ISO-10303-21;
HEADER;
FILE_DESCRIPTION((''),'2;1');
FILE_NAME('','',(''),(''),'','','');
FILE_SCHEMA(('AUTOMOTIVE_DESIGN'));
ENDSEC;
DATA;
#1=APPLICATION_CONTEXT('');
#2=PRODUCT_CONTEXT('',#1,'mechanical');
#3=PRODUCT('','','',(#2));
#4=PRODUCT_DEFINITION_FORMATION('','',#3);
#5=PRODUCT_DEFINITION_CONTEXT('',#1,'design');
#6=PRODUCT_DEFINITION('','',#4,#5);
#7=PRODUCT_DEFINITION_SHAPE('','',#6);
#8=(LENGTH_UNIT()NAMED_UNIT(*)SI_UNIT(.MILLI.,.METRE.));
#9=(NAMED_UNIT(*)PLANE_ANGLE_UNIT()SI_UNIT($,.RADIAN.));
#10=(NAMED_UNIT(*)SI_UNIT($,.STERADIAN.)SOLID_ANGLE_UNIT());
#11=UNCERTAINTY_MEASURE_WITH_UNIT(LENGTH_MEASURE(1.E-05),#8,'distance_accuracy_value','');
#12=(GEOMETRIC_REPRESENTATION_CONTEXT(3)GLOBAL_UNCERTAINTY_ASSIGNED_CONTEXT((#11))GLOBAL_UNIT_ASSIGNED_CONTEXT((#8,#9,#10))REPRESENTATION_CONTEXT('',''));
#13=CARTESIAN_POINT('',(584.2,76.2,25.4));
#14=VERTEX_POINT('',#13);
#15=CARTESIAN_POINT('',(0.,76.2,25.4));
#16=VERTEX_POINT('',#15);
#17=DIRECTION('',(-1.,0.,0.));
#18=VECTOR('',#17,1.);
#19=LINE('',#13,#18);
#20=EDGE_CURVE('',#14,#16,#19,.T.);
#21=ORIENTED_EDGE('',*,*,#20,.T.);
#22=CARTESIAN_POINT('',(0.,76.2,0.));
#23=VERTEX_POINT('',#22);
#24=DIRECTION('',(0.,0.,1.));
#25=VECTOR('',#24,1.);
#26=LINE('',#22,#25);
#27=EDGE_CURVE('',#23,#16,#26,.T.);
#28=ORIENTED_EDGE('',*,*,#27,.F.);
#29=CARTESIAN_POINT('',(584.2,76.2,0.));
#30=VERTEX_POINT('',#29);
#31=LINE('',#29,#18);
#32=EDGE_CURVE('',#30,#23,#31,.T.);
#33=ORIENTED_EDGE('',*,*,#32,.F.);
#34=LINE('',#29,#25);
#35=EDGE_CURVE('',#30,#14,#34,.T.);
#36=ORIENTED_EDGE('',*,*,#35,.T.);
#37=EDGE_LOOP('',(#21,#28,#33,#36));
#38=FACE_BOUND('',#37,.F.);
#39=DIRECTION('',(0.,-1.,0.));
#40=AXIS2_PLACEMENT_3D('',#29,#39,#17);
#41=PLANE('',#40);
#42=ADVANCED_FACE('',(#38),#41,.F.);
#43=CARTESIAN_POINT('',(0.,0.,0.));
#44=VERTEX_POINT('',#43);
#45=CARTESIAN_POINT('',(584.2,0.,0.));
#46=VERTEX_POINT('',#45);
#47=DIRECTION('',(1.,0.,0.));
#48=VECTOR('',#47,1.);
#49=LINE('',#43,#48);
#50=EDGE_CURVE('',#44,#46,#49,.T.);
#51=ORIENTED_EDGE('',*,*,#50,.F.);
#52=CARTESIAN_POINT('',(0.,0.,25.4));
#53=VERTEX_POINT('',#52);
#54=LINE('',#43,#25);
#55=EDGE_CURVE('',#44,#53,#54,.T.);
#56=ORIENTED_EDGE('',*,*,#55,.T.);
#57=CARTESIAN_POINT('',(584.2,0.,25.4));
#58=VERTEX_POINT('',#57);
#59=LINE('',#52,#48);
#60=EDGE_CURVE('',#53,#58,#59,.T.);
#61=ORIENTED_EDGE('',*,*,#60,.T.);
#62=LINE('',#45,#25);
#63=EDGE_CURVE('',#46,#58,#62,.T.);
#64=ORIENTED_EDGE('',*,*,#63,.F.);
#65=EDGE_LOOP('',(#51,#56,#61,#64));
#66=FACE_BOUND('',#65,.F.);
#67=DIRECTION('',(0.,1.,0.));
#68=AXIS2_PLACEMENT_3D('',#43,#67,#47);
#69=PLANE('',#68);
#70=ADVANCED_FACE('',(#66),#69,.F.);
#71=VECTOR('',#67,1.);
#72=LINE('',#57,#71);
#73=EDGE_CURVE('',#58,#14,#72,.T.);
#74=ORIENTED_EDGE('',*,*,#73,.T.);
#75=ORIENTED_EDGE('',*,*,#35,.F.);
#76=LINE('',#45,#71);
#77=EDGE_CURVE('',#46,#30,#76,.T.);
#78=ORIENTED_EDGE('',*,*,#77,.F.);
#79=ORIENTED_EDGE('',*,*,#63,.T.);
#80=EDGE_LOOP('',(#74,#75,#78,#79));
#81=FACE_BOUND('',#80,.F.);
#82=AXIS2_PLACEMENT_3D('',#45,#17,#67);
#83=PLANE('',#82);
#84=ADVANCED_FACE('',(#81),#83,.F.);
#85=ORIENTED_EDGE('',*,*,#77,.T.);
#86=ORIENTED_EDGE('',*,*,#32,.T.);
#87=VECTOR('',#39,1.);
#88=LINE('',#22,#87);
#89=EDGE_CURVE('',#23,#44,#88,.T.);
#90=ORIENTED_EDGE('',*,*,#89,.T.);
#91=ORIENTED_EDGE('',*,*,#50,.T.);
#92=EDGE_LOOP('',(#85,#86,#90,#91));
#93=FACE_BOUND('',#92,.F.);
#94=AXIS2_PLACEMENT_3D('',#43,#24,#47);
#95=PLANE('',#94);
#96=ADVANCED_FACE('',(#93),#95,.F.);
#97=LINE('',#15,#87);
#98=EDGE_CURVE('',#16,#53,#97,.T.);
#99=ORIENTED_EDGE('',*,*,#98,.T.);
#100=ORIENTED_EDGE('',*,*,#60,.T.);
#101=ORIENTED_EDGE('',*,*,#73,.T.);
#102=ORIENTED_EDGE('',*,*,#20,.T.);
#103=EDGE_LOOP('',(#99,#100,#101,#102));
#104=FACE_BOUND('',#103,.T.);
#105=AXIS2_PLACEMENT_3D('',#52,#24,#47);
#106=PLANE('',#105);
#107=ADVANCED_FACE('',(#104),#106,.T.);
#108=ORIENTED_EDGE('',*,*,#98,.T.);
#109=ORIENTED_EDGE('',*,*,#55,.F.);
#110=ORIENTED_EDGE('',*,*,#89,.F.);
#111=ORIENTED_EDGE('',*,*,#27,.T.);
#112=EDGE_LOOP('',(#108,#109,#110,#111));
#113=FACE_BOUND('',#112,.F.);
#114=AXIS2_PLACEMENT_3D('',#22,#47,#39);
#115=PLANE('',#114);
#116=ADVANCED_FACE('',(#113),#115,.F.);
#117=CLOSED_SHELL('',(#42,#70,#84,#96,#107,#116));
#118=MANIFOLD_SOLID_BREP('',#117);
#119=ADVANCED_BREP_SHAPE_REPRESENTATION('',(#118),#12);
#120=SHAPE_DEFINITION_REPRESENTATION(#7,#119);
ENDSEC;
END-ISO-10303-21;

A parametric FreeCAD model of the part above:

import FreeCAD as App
import Part
import Sketcher
from FreeCAD import Vector
Q = App.Units.Quantity


def add_polygon(sketch, points):
    """Adds a closed chain of lines whose ends are joined by coincident constraints."""
    first, n = sketch.GeometryCount, len(points)
    for a, b in zip(points, points[1:] + points[:1]):
        sketch.addGeometry(Part.LineSegment(App.Vector(*a, 0), App.Vector(*b, 0)), False)
    for i in range(n):
        sketch.addConstraint(Sketcher.Constraint("Coincident", first + i, 2, first + (i + 1) % n, 1))

doc = App.newDocument("Part")
body = doc.addObject("PartDesign::Body", "Body")

sketch1 = body.newObject("Sketcher::SketchObject", "Sketch")
sketch1.AttachmentSupport = (doc.getObject("XY_Plane"), [""])
sketch1.MapMode = "FlatFace"
add_polygon(sketch1, [(0, 76), (0, 0), (584, 0), (584, 76)])
sketch1.addConstraint([
    Sketcher.Constraint("Vertical", 0),
    Sketcher.Constraint("Horizontal", 1),
    Sketcher.Constraint("Vertical", 2),
    Sketcher.Constraint("Horizontal", 3),
    Sketcher.Constraint("Coincident", 0, 2, -1, 1),
    Sketcher.Constraint("DistanceX", 1, 1, 1, 2, Q("23 in")),
    Sketcher.Constraint("DistanceY", 0, 2, 0, 1, Q("3 in")),
])
pad1 = body.newObject("PartDesign::Pad", "Pad")
pad1.Profile = sketch1
pad1.Length = Q("1 in")

doc.recompute()
